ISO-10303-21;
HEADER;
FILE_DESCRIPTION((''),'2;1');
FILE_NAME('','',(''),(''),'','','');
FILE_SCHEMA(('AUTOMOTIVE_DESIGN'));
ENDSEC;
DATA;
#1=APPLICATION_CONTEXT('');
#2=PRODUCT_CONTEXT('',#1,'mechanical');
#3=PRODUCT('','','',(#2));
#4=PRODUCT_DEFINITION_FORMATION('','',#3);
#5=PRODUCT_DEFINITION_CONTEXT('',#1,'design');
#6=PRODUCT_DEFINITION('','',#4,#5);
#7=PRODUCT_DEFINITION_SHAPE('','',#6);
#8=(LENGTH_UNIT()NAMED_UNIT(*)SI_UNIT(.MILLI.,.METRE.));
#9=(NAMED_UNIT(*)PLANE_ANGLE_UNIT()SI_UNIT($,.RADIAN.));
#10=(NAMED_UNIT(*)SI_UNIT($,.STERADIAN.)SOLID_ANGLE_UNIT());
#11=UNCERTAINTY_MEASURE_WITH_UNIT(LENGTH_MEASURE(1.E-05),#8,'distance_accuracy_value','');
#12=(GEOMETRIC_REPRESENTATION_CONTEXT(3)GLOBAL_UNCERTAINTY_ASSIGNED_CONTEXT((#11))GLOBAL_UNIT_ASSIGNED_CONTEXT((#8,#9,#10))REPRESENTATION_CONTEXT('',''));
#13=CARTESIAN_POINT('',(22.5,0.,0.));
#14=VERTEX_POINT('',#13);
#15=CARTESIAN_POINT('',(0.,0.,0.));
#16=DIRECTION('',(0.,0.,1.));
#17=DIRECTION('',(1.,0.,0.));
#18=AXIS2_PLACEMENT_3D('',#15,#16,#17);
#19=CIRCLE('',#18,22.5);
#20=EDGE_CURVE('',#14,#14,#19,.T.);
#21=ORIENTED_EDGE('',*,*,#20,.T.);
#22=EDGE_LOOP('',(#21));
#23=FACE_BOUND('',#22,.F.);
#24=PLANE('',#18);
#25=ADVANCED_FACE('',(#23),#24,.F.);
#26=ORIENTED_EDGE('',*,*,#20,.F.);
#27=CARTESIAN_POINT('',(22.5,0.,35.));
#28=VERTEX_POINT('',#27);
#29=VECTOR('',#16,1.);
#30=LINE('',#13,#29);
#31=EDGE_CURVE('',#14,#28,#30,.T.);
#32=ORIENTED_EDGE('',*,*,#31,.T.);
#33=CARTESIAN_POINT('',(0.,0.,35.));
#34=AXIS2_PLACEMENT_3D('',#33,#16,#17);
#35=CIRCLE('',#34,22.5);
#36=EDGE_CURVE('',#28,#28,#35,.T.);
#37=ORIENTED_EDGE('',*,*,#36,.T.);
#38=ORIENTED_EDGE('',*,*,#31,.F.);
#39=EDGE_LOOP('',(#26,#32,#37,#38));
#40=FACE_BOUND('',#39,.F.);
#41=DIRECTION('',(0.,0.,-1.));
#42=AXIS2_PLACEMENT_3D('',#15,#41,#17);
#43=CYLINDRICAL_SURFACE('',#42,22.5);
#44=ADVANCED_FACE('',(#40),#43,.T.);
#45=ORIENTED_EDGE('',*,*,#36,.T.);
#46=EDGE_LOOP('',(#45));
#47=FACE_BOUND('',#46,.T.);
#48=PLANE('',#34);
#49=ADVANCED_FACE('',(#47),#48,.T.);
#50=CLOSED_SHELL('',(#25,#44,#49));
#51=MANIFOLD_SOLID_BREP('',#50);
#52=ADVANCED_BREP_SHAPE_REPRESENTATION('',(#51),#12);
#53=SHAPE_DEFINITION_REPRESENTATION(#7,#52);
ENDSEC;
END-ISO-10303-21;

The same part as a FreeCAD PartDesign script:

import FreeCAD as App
import Part
import Sketcher
from FreeCAD import Vector
Q = App.Units.Quantity

doc = App.newDocument("Part")
body = doc.addObject("PartDesign::Body", "Body")

# Sketch on XY plane
sketch1 = body.newObject("Sketcher::SketchObject", "Sketch")
sketch1.AttachmentSupport = (doc.getObject("XY_Plane"), [""])
sketch1.MapMode = "FlatFace"
sketch1.addGeometry(Part.Circle(Vector(0, 0, 0), Vector(0, 0, 1), 22.5), False)
sketch1.addConstraint(Sketcher.Constraint("Coincident", 0, 3, -1, 1))
sketch1.addConstraint(Sketcher.Constraint("Diameter", 0, Q("45 mm")))
pad1 = body.newObject("PartDesign::Pad", "Pad")
pad1.Profile = sketch1
pad1.Length = 35

doc.recompute()
